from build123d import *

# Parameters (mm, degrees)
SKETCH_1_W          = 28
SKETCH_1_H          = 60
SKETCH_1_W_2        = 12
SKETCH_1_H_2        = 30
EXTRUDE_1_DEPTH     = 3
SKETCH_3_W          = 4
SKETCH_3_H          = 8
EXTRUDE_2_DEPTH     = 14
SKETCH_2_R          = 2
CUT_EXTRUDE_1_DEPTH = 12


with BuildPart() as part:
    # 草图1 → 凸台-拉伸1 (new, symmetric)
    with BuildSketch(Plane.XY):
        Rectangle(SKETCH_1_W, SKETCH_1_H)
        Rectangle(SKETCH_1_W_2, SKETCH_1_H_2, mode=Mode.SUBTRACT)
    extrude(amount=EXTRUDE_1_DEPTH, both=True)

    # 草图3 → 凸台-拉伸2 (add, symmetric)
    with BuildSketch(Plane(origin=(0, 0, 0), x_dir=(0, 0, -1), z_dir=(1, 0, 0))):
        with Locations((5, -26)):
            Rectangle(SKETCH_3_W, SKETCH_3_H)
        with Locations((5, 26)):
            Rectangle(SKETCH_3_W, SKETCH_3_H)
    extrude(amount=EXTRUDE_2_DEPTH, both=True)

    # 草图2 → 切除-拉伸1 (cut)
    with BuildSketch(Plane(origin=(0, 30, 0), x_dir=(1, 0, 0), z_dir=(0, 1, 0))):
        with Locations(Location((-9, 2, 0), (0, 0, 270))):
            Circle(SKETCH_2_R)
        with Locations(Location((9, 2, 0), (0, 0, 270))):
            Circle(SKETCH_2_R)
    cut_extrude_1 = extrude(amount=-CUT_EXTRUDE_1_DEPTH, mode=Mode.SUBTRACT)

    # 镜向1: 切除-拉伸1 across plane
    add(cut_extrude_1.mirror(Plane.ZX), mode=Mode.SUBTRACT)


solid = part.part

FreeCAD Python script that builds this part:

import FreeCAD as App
import Part
import Sketcher

V = App.Vector

doc = App.newDocument("Part")
body = doc.addObject("PartDesign::Body", "Body")

sketch1 = body.newObject("Sketcher::SketchObject", "Sketch")
sketch1.AttachmentSupport = (doc.getObject("XY_Plane"), [""])
sketch1.MapMode = "FlatFace"
sketch1.addGeometry([
    Part.LineSegment(V(-14, 30, 0), V(-14, -30, 0)),
    Part.LineSegment(V(-14, -30, 0), V(14, -30, 0)),
    Part.LineSegment(V(14, -30, 0), V(14, 30, 0)),
    Part.LineSegment(V(14, 30, 0), V(-14, 30, 0)),
    Part.LineSegment(V(6, -15, 0), V(-6, -15, 0)),
    Part.LineSegment(V(-6, -15, 0), V(-6, 15, 0)),
    Part.LineSegment(V(-6, 15, 0), V(6, 15, 0)),
    Part.LineSegment(V(6, 15, 0), V(6, -15, 0)),
], False)
sketch1.addConstraint([
    Sketcher.Constraint("Coincident", 0, 2, 1, 1),
    Sketcher.Constraint("Coincident", 1, 2, 2, 1),
    Sketcher.Constraint("Coincident", 2, 2, 3, 1),
    Sketcher.Constraint("Coincident", 3, 2, 0, 1),
    Sketcher.Constraint("Coincident", 4, 2, 5, 1),
    Sketcher.Constraint("Coincident", 5, 2, 6, 1),
    Sketcher.Constraint("Coincident", 6, 2, 7, 1),
    Sketcher.Constraint("Coincident", 7, 2, 4, 1),
    Sketcher.Constraint("Vertical", 0),
    Sketcher.Constraint("Horizontal", 1),
    Sketcher.Constraint("Vertical", 2),
    Sketcher.Constraint("Horizontal", 3),
    Sketcher.Constraint("Horizontal", 4),
    Sketcher.Constraint("Vertical", 5),
    Sketcher.Constraint("Horizontal", 6),
    Sketcher.Constraint("Vertical", 7),
    Sketcher.Constraint("Symmetric", 0, 2, 2, 2, -1, 1),
    Sketcher.Constraint("Symmetric", 4, 2, 6, 2, -1, 1),
    Sketcher.Constraint("DistanceX", 1, 1, 1, 2, 28.0),
    Sketcher.Constraint("DistanceX", 4, 2, 4, 1, 12.0),
    Sketcher.Constraint("DistanceY", 0, 2, 0, 1, 60.0),
    Sketcher.Constraint("DistanceY", 5, 1, 5, 2, 30.0),
])
pad1 = body.newObject("PartDesign::Pad", "Pad")
pad1.Profile = sketch1
pad1.Length = 6
pad1.Midplane = True

sketch2 = body.newObject("Sketcher::SketchObject", "Sketch001")
sketch2.AttachmentSupport = (doc.getObject("YZ_Plane"), [""])
sketch2.MapMode = "FlatFace"
sketch2.addGeometry([
    Part.LineSegment(V(-22, -3, 0), V(-30, -3, 0)),
    Part.LineSegment(V(-30, -3, 0), V(-30, -7, 0)),
    Part.LineSegment(V(-30, -7, 0), V(-22, -7, 0)),
    Part.LineSegment(V(-22, -7, 0), V(-22, -3, 0)),
    Part.LineSegment(V(30, -3, 0), V(22, -3, 0)),
    Part.LineSegment(V(22, -3, 0), V(22, -7, 0)),
    Part.LineSegment(V(22, -7, 0), V(30, -7, 0)),
    Part.LineSegment(V(30, -7, 0), V(30, -3, 0)),
], False)
sketch2.addConstraint([
    Sketcher.Constraint("Coincident", 0, 2, 1, 1),
    Sketcher.Constraint("Coincident", 1, 2, 2, 1),
    Sketcher.Constraint("Coincident", 2, 2, 3, 1),
    Sketcher.Constraint("Coincident", 3, 2, 0, 1),
    Sketcher.Constraint("Coincident", 4, 2, 5, 1),
    Sketcher.Constraint("Coincident", 5, 2, 6, 1),
    Sketcher.Constraint("Coincident", 6, 2, 7, 1),
    Sketcher.Constraint("Coincident", 7, 2, 4, 1),
    Sketcher.Constraint("Horizontal", 0),
    Sketcher.Constraint("Vertical", 1),
    Sketcher.Constraint("Horizontal", 2),
    Sketcher.Constraint("Vertical", 3),
    Sketcher.Constraint("Horizontal", 4),
    Sketcher.Constraint("Vertical", 5),
    Sketcher.Constraint("Horizontal", 6),
    Sketcher.Constraint("Vertical", 7),
    Sketcher.Constraint("Symmetric", 3, 2, 4, 2, -2),
    Sketcher.Constraint("Symmetric", 1, 2, 6, 2, -2),
    Sketcher.Constraint("DistanceX", 0, 2, 0, 1, 8.0),
    Sketcher.Constraint("DistanceY", 1, 2, 1, 1, 4.0),
    Sketcher.Constraint("DistanceX", 0, 2, -1, 1, 30.0),
    Sketcher.Constraint("DistanceY", 0, 2, -1, 1, 3.0),
])
pad2 = body.newObject("PartDesign::Pad", "Pad001")
pad2.Profile = sketch2
pad2.Length = 28
pad2.Midplane = True

sketch3 = body.newObject("Sketcher::SketchObject", "Sketch002")
sketch3.AttachmentSupport = (doc.getObject("XZ_Plane"), [""])
sketch3.MapMode = "FlatFace"
sketch3.AttachmentOffset = App.Placement(V(0, 0, -30), App.Rotation())
sketch3.addGeometry([
    Part.Circle(V(-9, -2, 0), V(0, 0, 1), 2),
    Part.Circle(V(9, -2, 0), V(0, 0, 1), 2),
], False)
sketch3.addConstraint([
    Sketcher.Constraint("Equal", 0, 1),
    Sketcher.Constraint("Symmetric", 0, 3, 1, 3, -2),
    Sketcher.Constraint("Diameter", 0, 4.0),
    Sketcher.Constraint("DistanceX", 0, 3, -1, 1, 9.0),
    Sketcher.Constraint("DistanceY", 0, 3, -1, 1, 2.0),
])
pocket1 = body.newObject("PartDesign::Pocket", "Pocket")
pocket1.Profile = sketch3
pocket1.Length = 12
pocket1.Reversed = True
doc.recompute()

mirrored = body.newObject("PartDesign::Mirrored", "Mirrored")
mirrored.Originals = [pocket1]
mirrored.MirrorPlane = (doc.getObject("XZ_Plane"), [""])
body.Tip = mirrored

doc.recompute()
